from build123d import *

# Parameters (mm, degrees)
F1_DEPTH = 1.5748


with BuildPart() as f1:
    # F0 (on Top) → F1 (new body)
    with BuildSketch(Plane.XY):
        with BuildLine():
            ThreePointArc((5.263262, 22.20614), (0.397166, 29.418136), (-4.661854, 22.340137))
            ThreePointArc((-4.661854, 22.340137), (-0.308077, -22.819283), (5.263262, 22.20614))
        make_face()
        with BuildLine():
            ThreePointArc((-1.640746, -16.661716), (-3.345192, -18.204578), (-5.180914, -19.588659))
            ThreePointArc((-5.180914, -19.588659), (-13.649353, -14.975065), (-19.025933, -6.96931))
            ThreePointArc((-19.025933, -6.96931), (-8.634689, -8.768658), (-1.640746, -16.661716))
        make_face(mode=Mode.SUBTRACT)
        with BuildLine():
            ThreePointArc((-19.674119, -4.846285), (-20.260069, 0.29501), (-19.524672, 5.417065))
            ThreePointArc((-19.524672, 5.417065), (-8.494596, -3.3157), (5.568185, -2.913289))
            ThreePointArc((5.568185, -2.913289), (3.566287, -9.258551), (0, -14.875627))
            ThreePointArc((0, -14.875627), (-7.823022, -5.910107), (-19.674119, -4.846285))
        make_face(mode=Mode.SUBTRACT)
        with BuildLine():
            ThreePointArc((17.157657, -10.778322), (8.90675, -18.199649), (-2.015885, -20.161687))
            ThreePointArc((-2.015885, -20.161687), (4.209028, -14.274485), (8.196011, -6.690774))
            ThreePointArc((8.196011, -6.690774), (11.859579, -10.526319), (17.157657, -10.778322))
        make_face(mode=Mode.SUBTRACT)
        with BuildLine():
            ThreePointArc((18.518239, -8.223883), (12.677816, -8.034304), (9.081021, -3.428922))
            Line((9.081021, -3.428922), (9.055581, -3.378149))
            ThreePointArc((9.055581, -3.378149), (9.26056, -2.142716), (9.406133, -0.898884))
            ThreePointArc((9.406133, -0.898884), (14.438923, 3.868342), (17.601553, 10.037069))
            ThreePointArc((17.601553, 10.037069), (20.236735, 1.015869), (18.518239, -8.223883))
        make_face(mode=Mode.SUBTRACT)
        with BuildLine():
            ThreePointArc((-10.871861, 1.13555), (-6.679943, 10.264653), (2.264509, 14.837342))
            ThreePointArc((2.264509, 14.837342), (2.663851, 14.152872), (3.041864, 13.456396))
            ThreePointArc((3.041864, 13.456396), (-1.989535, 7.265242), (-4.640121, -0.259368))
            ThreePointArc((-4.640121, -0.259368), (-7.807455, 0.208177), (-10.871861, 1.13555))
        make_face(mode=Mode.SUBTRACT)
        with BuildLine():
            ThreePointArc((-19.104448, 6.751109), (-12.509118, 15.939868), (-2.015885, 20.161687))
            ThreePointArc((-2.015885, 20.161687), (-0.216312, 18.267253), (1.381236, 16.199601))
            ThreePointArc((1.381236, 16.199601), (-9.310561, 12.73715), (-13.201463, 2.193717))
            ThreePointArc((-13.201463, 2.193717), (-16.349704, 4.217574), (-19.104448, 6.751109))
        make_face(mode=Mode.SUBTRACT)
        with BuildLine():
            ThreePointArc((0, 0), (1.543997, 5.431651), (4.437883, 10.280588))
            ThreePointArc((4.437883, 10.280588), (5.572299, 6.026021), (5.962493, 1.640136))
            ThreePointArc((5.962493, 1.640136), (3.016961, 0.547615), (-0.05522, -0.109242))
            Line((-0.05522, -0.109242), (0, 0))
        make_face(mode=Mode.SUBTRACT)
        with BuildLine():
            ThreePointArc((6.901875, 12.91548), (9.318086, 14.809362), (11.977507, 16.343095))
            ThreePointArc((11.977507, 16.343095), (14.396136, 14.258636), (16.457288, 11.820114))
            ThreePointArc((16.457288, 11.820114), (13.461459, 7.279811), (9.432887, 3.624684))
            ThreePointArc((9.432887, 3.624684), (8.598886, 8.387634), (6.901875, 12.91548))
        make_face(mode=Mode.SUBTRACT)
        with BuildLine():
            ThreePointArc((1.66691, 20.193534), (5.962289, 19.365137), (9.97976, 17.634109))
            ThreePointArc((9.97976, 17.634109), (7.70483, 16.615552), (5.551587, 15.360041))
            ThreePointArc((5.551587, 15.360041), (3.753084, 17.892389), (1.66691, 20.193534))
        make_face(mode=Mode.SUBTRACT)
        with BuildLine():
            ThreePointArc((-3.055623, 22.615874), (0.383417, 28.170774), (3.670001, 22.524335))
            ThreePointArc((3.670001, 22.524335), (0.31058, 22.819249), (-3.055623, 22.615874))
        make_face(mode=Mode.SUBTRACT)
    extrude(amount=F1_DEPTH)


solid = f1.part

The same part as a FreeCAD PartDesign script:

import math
import FreeCAD as App
import Part
import Sketcher
Q = App.Units.Quantity

doc = App.newDocument("Part")
params = doc.addObject("Spreadsheet::Sheet", "Params")
for row, (alias, value) in enumerate([
    ("pad1_length", "0.062 in"),
], start=1):
    params.set(f"A{row}", alias)
    params.set(f"B{row}", "=" + value)
    params.setAlias(f"B{row}", alias)

body = doc.addObject("PartDesign::Body", "Body")

sketch1 = body.newObject("Sketcher::SketchObject", "Sketch")
sketch1.AttachmentSupport = (doc.getObject("XY_Plane"), [""])
sketch1.MapMode = "FlatFace"
sketch1.addGeometry(Part.ArcOfCircle(Part.Circle(App.Vector(0.33, 24.12, 0), App.Vector(0, 0, 1), 5.3), math.radians(-21), math.radians(200)), False)
sketch1.addGeometry(Part.ArcOfCircle(Part.Circle(App.Vector(0, 0, 0), App.Vector(0, 0, 1), 22.82), math.radians(102), math.radians(437)), False)
sketch1.addGeometry(Part.ArcOfCircle(Part.Circle(App.Vector(-16.4, -22.69, 0), App.Vector(0, 0, 1), 15.94), math.radians(22), math.radians(99)), False)
sketch1.addGeometry(Part.ArcOfCircle(Part.Circle(App.Vector(-19.69, 1.57, 0), App.Vector(0, 0, 1), 25.66), math.radians(-55.55), math.radians(-45.28)), False)
sketch1.addGeometry(Part.ArcOfCircle(Part.Circle(App.Vector(0, 0, 0), App.Vector(0, 0, 1), 20.26), math.radians(-160), math.radians(-105)), False)
sketch1.addGeometry(Part.ArcOfCircle(Part.Circle(App.Vector(-15.07, -20.13, 0), App.Vector(0, 0, 1), 15.96), math.radians(19), math.radians(107)), False)
sketch1.addGeometry(Part.ArcOfCircle(Part.Circle(App.Vector(0, 0, 0), App.Vector(0, 0, 1), 20.26), math.radians(164), math.radians(194)), False)
sketch1.addGeometry(Part.ArcOfCircle(Part.Circle(App.Vector(-2.02, 16.2, 0), App.Vector(0, 0, 1), 20.56), math.radians(-148), math.radians(-68)), False)
sketch1.addGeometry(Part.ArcOfCircle(Part.Circle(App.Vector(-19.69, 1.57, 0), App.Vector(0, 0, 1), 25.66), math.radians(-40), math.radians(-10)), False)
sketch1.addGeometry(Part.ArcOfCircle(Part.Circle(App.Vector(14.82, -4.03, 0), App.Vector(0, 0, 1), 7.14), math.radians(-158), math.radians(-71)), False)
sketch1.addGeometry(Part.ArcOfCircle(Part.Circle(App.Vector(0, 0, 0), App.Vector(0, 0, 1), 20.26), math.radians(-96), math.radians(-32)), False)
sketch1.addGeometry(Part.ArcOfCircle(Part.Circle(App.Vector(-16.62, 1.52, 0), App.Vector(0, 0, 1), 26.14), math.radians(-56), math.radians(-18)), False)
sketch1.addGeometry(Part.ArcOfCircle(Part.Circle(App.Vector(0, 0, 0), App.Vector(0, 0, 1), 20.26), math.radians(-24), math.radians(30)), False)
sketch1.addGeometry(Part.ArcOfCircle(Part.Circle(App.Vector(15.8, -1.89, 0), App.Vector(0, 0, 1), 6.89), math.radians(-167), math.radians(-67)), False)
sketch1.addGeometry(Part.LineSegment(App.Vector(9.08, -3.43, 0), App.Vector(9.06, -3.38, 0)), False)
sketch1.addGeometry(Part.ArcOfCircle(Part.Circle(App.Vector(-16.62, 1.52, 0), App.Vector(0, 0, 1), 26.14), math.radians(-10.79), math.radians(-5.3)), False)
sketch1.addGeometry(Part.ArcOfCircle(Part.Circle(App.Vector(-2.02, 16.2, 0), App.Vector(0, 0, 1), 20.56), math.radians(-56), math.radians(-17)), False)
sketch1.addGeometry(Part.ArcOfCircle(Part.Circle(App.Vector(-3.06, 21.44, 0), App.Vector(0, 0, 1), 21.75), math.radians(-111.06), math.radians(-94.18)), False)
sketch1.addGeometry(Part.ArcOfCircle(Part.Circle(App.Vector(4.38, -0.34, 0), App.Vector(0, 0, 1), 15.33), math.radians(98), math.radians(174)), False)
sketch1.addGeometry(Part.ArcOfCircle(Part.Circle(App.Vector(-19.69, 1.57, 0), App.Vector(0, 0, 1), 25.66), math.radians(27.61), math.radians(31.15)), False)
sketch1.addGeometry(Part.ArcOfCircle(Part.Circle(App.Vector(18.36, -4.13, 0), App.Vector(0, 0, 1), 23.32), math.radians(131), math.radians(170)), False)
sketch1.addGeometry(Part.ArcOfCircle(Part.Circle(App.Vector(-3.06, 21.44, 0), App.Vector(0, 0, 1), 21.75), math.radians(-137.54), math.radians(-117.8)), False)
sketch1.addGeometry(Part.ArcOfCircle(Part.Circle(App.Vector(0, 0, 0), App.Vector(0, 0, 1), 20.26), math.radians(96), math.radians(161)), False)
sketch1.addGeometry(Part.ArcOfCircle(Part.Circle(App.Vector(-19.69, 1.57, 0), App.Vector(0, 0, 1), 25.66), math.radians(34.77), math.radians(46.45)), False)
sketch1.addGeometry(Part.ArcOfCircle(Part.Circle(App.Vector(-0.4, 3.46, 0), App.Vector(0, 0, 1), 12.86), math.radians(82), math.radians(186)), False)
sketch1.addGeometry(Part.LineSegment(App.Vector(-0.06, -0.11, 0), App.Vector(0, 0, 0)), False)
sketch1.addGeometry(Part.ArcOfCircle(Part.Circle(App.Vector(21.46, -3.16, 0), App.Vector(0, 0, 1), 21.69), math.radians(142), math.radians(172)), False)
sketch1.addGeometry(Part.ArcOfCircle(Part.Circle(App.Vector(-19.69, 1.57, 0), App.Vector(0, 0, 1), 25.66), math.radians(0.16), math.radians(19.85)), False)
sketch1.addGeometry(Part.ArcOfCircle(Part.Circle(App.Vector(-3.06, 21.44, 0), App.Vector(0, 0, 1), 21.75), math.radians(-82.07), math.radians(-65.51)), False)
sketch1.addGeometry(Part.ArcOfCircle(Part.Circle(App.Vector(-16.62, 1.52, 0), App.Vector(0, 0, 1), 26.14), math.radians(5), math.radians(26)), False)
sketch1.addGeometry(Part.ArcOfCircle(Part.Circle(App.Vector(21.46, -3.16, 0), App.Vector(0, 0, 1), 21.69), math.radians(115.91), math.radians(132.15)), False)
sketch1.addGeometry(Part.ArcOfCircle(Part.Circle(App.Vector(0, 0, 0), App.Vector(0, 0, 1), 20.26), math.radians(35.69), math.radians(53.76)), False)
sketch1.addGeometry(Part.ArcOfCircle(Part.Circle(App.Vector(-3.06, 21.44, 0), App.Vector(0, 0, 1), 21.75), math.radians(-55), math.radians(-26)), False)
sketch1.addGeometry(Part.ArcOfCircle(Part.Circle(App.Vector(-16.62, 1.52, 0), App.Vector(0, 0, 1), 26.14), math.radians(31.98), math.radians(45.6)), False)
sketch1.addGeometry(Part.ArcOfCircle(Part.Circle(App.Vector(0, 0, 0), App.Vector(0, 0, 1), 20.26), math.radians(60), math.radians(85)), False)
sketch1.addGeometry(Part.ArcOfCircle(Part.Circle(App.Vector(18.36, -4.13, 0), App.Vector(0, 0, 1), 23.32), math.radians(111.06), math.radians(123.31)), False)
sketch1.addGeometry(Part.ArcOfCircle(Part.Circle(App.Vector(0, 0, 0), App.Vector(0, 0, 1), 22.82), math.radians(80.75), math.radians(97.69)), False)
sketch1.addGeometry(Part.ArcOfCircle(Part.Circle(App.Vector(0.33, 24.36, 0), App.Vector(0, 0, 1), 3.81), math.radians(-29), math.radians(207)), False)
sketch1.addConstraint(Sketcher.Constraint("Coincident", 0, 1, 1, 2))
sketch1.addConstraint(Sketcher.Constraint("Coincident", 1, 1, 0, 2))
sketch1.addConstraint(Sketcher.Constraint("Coincident", 2, 1, 3, 2))
sketch1.addConstraint(Sketcher.Constraint("Coincident", 3, 1, 4, 2))
sketch1.addConstraint(Sketcher.Constraint("Coincident", 4, 1, 2, 2))
sketch1.addConstraint(Sketcher.Constraint("Coincident", 5, 2, 6, 2))
sketch1.addConstraint(Sketcher.Constraint("Coincident", 6, 1, 7, 1))
sketch1.addConstraint(Sketcher.Constraint("Coincident", 7, 2, 8, 2))
sketch1.addConstraint(Sketcher.Constraint("Coincident", 8, 1, 5, 1))
sketch1.addConstraint(Sketcher.Constraint("Coincident", 9, 2, 10, 2))
sketch1.addConstraint(Sketcher.Constraint("Coincident", 10, 1, 11, 1))
sketch1.addConstraint(Sketcher.Constraint("Coincident", 11, 2, 9, 1))
sketch1.addConstraint(Sketcher.Constraint("Coincident", 12, 1, 13, 2))
sketch1.addConstraint(Sketcher.Constraint("Coincident", 13, 1, 14, 1))
sketch1.addConstraint(Sketcher.Constraint("Coincident", 14, 2, 15, 1))
sketch1.addConstraint(Sketcher.Constraint("Coincident", 15, 2, 16, 1))
sketch1.addConstraint(Sketcher.Constraint("Coincident", 16, 2, 12, 2))
sketch1.addConstraint(Sketcher.Constraint("Coincident", 17, 1, 18, 2))
sketch1.addConstraint(Sketcher.Constraint("Coincident", 18, 1, 19, 2))
sketch1.addConstraint(Sketcher.Constraint("Coincident", 19, 1, 20, 1))
sketch1.addConstraint(Sketcher.Constraint("Coincident", 20, 2, 17, 2))
sketch1.addConstraint(Sketcher.Constraint("Coincident", 21, 1, 22, 2))
sketch1.addConstraint(Sketcher.Constraint("Coincident", 22, 1, 23, 2))
sketch1.addConstraint(Sketcher.Constraint("Coincident", 23, 1, 24, 1))
sketch1.addConstraint(Sketcher.Constraint("Coincident", 24, 2, 21, 2))
sketch1.addConstraint(Sketcher.Constraint("Coincident", 25, 2, 26, 2))
sketch1.addConstraint(Sketcher.Constraint("Coincident", 26, 1, 27, 2))
sketch1.addConstraint(Sketcher.Constraint("Coincident", 27, 1, 28, 2))
sketch1.addConstraint(Sketcher.Constraint("Coincident", 28, 1, 25, 1))
sketch1.addConstraint(Sketcher.Constraint("Coincident", 29, 2, 30, 2))
sketch1.addConstraint(Sketcher.Constraint("Coincident", 30, 1, 31, 2))
sketch1.addConstraint(Sketcher.Constraint("Coincident", 31, 1, 32, 2))
sketch1.addConstraint(Sketcher.Constraint("Coincident", 32, 1, 29, 1))
sketch1.addConstraint(Sketcher.Constraint("Coincident", 33, 2, 34, 2))
sketch1.addConstraint(Sketcher.Constraint("Coincident", 34, 1, 35, 1))
sketch1.addConstraint(Sketcher.Constraint("Coincident", 35, 2, 33, 1))
sketch1.addConstraint(Sketcher.Constraint("Coincident", 36, 1, 37, 1))
sketch1.addConstraint(Sketcher.Constraint("Coincident", 37, 2, 36, 2))
sketch1.addConstraint(Sketcher.Constraint("Coincident", 1, 3, -1, 1))
sketch1.addConstraint(Sketcher.Constraint("Coincident", 4, 3, -1, 1))
sketch1.addConstraint(Sketcher.Constraint("Coincident", 6, 3, -1, 1))
sketch1.addConstraint(Sketcher.Constraint("Coincident", 10, 3, -1, 1))
sketch1.addConstraint(Sketcher.Constraint("Coincident", 12, 3, -1, 1))
sketch1.addConstraint(Sketcher.Constraint("Coincident", 22, 3, -1, 1))
sketch1.addConstraint(Sketcher.Constraint("Coincident", 36, 3, -1, 1))
sketch1.addConstraint(Sketcher.Constraint("Coincident", 25, 2, -1, 1))
sketch1.addConstraint(Sketcher.Constraint("Coincident", 16, 3, 7, 3))
sketch1.addConstraint(Sketcher.Constraint("Coincident", 23, 3, 8, 3))
sketch1.addConstraint(Sketcher.Constraint("Coincident", 27, 3, 8, 3))
sketch1.addConstraint(Sketcher.Constraint("Coincident", 29, 3, 11, 3))
sketch1.addConstraint(Sketcher.Constraint("Coincident", 32, 3, 28, 3))
sketch1.addConstraint(Sketcher.Constraint("Coincident", 34, 3, 31, 3))
sketch1.addConstraint(Sketcher.Constraint("Equal", 10, 12))
sketch1.addConstraint(Sketcher.Constraint("Equal", 12, 22))
sketch1.addConstraint(Sketcher.Constraint("Equal", 8, 23))
sketch1.addConstraint(Sketcher.Constraint("Equal", 23, 27))
sketch1.addConstraint(Sketcher.Constraint("Equal", 28, 32))
sketch1.addConstraint(Sketcher.Constraint("Equal", 31, 34))
sketch1.addConstraint(Sketcher.Constraint("PointOnObject", 8, 1, -2))
sketch1.addConstraint(Sketcher.Constraint("Vertical", 7, 3, 10, 1))
sketch1.addConstraint(Sketcher.Constraint("Vertical", 10, 1, 22, 1))
sketch1.addConstraint(Sketcher.Constraint("Radius", 15, Q("26.139899 mm")))
sketch1.addConstraint(Sketcher.Constraint("Radius", 34, Q("20.262202 mm")))
sketch1.addConstraint(Sketcher.Constraint("Radius", 4, Q("20.262219 mm")))
sketch1.addConstraint(Sketcher.Constraint("Radius", 11, Q("26.140031 mm")))
sketch1.addConstraint(Sketcher.Constraint("Radius", 20, Q("23.323531 mm")))
sketch1.addConstraint(Sketcher.Constraint("Radius", 21, Q("21.75391 mm")))
sketch1.addConstraint(Sketcher.Constraint("Radius", 26, Q("21.687381 mm")))
sketch1.addConstraint(Sketcher.Constraint("Radius", 29, Q("26.140042 mm")))
sketch1.addConstraint(Sketcher.Constraint("DistanceX", -1, 1, 30, 3, Q("0.8447 in")))
sketch1.addConstraint(Sketcher.Constraint("DistanceX", 37, 2, -1, 1, Q("0.1203001 in")))
sketch1.addConstraint(Sketcher.Constraint("Radius", 0, Q("5.296354 mm")))
sketch1.addConstraint(Sketcher.Constraint("Radius", 1, Q("22.821363 mm")))
sketch1.addConstraint(Sketcher.Constraint("Radius", 2, Q("15.940904 mm")))
sketch1.addConstraint(Sketcher.Constraint("Radius", 3, Q("25.655387 mm")))
sketch1.addConstraint(Sketcher.Constraint("Radius", 5, Q("15.963183 mm")))
sketch1.addConstraint(Sketcher.Constraint("Radius", 6, Q("20.262214 mm")))
sketch1.addConstraint(Sketcher.Constraint("Radius", 7, Q("20.562606 mm")))
sketch1.addConstraint(Sketcher.Constraint("Radius", 8, Q("25.655363 mm")))
sketch1.addConstraint(Sketcher.Constraint("Radius", 9, Q("7.142738 mm")))
sketch1.addConstraint(Sketcher.Constraint("Radius", 10, Q("20.262216 mm")))
sketch1.addConstraint(Sketcher.Constraint("Radius", 13, Q("6.893964 mm")))
sketch1.addConstraint(Sketcher.Constraint("Radius", 16, Q("20.562614 mm")))
sketch1.addConstraint(Sketcher.Constraint("Radius", 17, Q("21.753933 mm")))
sketch1.addConstraint(Sketcher.Constraint("Radius", 18, Q("15.327237 mm")))
sketch1.addConstraint(Sketcher.Constraint("Radius", 19, Q("25.656773 mm")))
sketch1.addConstraint(Sketcher.Constraint("Radius", 24, Q("12.864485 mm")))
sketch1.addConstraint(Sketcher.Constraint("Radius", 28, Q("21.753964 mm")))
sketch1.addConstraint(Sketcher.Constraint("Radius", 30, Q("21.687365 mm")))
sketch1.addConstraint(Sketcher.Constraint("Radius", 33, Q("26.140053 mm")))
sketch1.addConstraint(Sketcher.Constraint("Radius", 35, Q("23.323493 mm")))
sketch1.addConstraint(Sketcher.Constraint("Radius", 36, Q("22.821356 mm")))
sketch1.addConstraint(Sketcher.Constraint("Radius", 37, Q("3.810255 mm")))
sketch1.addConstraint(Sketcher.Constraint("DistanceX", 19, 3, -1, 1, Q("19.694001 mm")))
sketch1.addConstraint(Sketcher.Constraint("DistanceY", -1, 1, 23, 1, Q("16.199601 mm")))
sketch1.addConstraint(Sketcher.Constraint("DistanceX", -1, 1, 36, 1, Q("3.670001 mm")))
sketch1.addConstraint(Sketcher.Constraint("Distance", 14, Q("0.05679 mm")))
sketch1.addConstraint(Sketcher.Constraint("DistanceX", -1, 1, 0, 3, Q("0.325669 mm")))
sketch1.addConstraint(Sketcher.Constraint("DistanceY", 2, 3, -1, 1, Q("22.69195 mm")))
sketch1.addConstraint(Sketcher.Constraint("DistanceY", 5, 3, -1, 1, Q("20.13198 mm")))
sketch1.addConstraint(Sketcher.Constraint("DistanceX", 8, 3, -1, 1, Q("19.692769 mm")))
sketch1.addConstraint(Sketcher.Constraint("DistanceY", -1, 1, 8, 3, Q("1.567989 mm")))
sketch1.addConstraint(Sketcher.Constraint("DistanceX", -1, 1, 9, 3, Q("14.82372 mm")))
sketch1.addConstraint(Sketcher.Constraint("DistanceY", 9, 3, -1, 1, Q("4.02766 mm")))
sketch1.addConstraint(Sketcher.Constraint("DistanceX", -1, 1, 18, 3, Q("4.383928 mm")))
sketch1.addConstraint(Sketcher.Constraint("DistanceY", 20, 3, -1, 1, Q("4.132021 mm")))
sketch1.addConstraint(Sketcher.Constraint("DistanceY", -1, 1, 21, 3, Q("21.436769 mm")))
sketch1.addConstraint(Sketcher.Constraint("DistanceY", 26, 3, -1, 1, Q("3.163621 mm")))
sketch1.addConstraint(Sketcher.Constraint("DistanceX", 28, 3, -1, 1, Q("3.055629 mm")))
sketch1.addConstraint(Sketcher.Constraint("DistanceY", 35, 3, -1, 1, Q("4.131989 mm")))
sketch1.addConstraint(Sketcher.Constraint("DistanceY", -1, 1, 0, 1, Q("22.20614 mm")))
sketch1.addConstraint(Sketcher.Constraint("DistanceY", 3, 1, -1, 1, Q("19.588659 mm")))
sketch1.addConstraint(Sketcher.Constraint("DistanceY", 4, 1, -1, 1, Q("6.96931 mm")))
sketch1.addConstraint(Sketcher.Constraint("DistanceY", 7, 2, -1, 1, Q("2.913289 mm")))
sketch1.addConstraint(Sketcher.Constraint("DistanceX", -1, 1, 11, 2, Q("8.196011 mm")))
sketch1.addConstraint(Sketcher.Constraint("DistanceX", -1, 1, 12, 1, Q("18.518239 mm")))
sketch1.addConstraint(Sketcher.Constraint("DistanceX", -1, 1, 13, 1, Q("9.081021 mm")))
sketch1.addConstraint(Sketcher.Constraint("DistanceY", 13, 1, -1, 1, Q("3.428922 mm")))
sketch1.addConstraint(Sketcher.Constraint("DistanceX", -1, 1, 14, 2, Q("9.055581 mm")))
sketch1.addConstraint(Sketcher.Constraint("DistanceX", 17, 1, -1, 1, Q("10.871861 mm")))
sketch1.addConstraint(Sketcher.Constraint("DistanceY", -1, 1, 17, 1, Q("1.13555 mm")))
sketch1.addConstraint(Sketcher.Constraint("DistanceX", -1, 1, 18, 1, Q("2.264509 mm")))
sketch1.addConstraint(Sketcher.Constraint("DistanceX", 20, 2, -1, 1, Q("4.640121 mm")))
sketch1.addConstraint(Sketcher.Constraint("DistanceX", 21, 1, -1, 1, Q("19.104448 mm")))
sketch1.addConstraint(Sketcher.Constraint("DistanceX", 28, 1, -1, 1, Q("0.05522 mm")))
sketch1.addConstraint(Sketcher.Constraint("DistanceY", -1, 1, 29, 2, Q("12.91548 mm")))
sketch1.addConstraint(Sketcher.Constraint("DistanceX", -1, 1, 33, 2, Q("1.66691 mm")))
sketch1.addConstraint(Sketcher.Constraint("DistanceX", -1, 1, 34, 1, Q("9.97976 mm")))
sketch1.addConstraint(Sketcher.Constraint("DistanceY", -1, 1, 34, 1, Q("17.634109 mm")))
sketch1.addConstraint(Sketcher.Constraint("DistanceY", -1, 1, 35, 2, Q("15.360041 mm")))
sketch1.addConstraint(Sketcher.Constraint("Distance", 25, Q("0.122405 mm")))
sketch1.addConstraint(Sketcher.Constraint("DistanceX", 3, 3, -1, 1, Q("19.692785 mm")))
sketch1.addConstraint(Sketcher.Constraint("DistanceX", 15, 3, -1, 1, Q("16.621897 mm")))
sketch1.addConstraint(Sketcher.Constraint("DistanceX", 17, 3, -1, 1, Q("3.055626 mm")))
sketch1.addConstraint(Sketcher.Constraint("DistanceX", 24, 3, -1, 1, Q("0.399346 mm")))
sketch1.addConstraint(Sketcher.Constraint("DistanceX", 33, 3, -1, 1, Q("16.622044 mm")))
pad1 = body.newObject("PartDesign::Pad", "Pad")
pad1.Profile = sketch1
pad1.setExpression("Length", "Params.pad1_length")

doc.recompute()
